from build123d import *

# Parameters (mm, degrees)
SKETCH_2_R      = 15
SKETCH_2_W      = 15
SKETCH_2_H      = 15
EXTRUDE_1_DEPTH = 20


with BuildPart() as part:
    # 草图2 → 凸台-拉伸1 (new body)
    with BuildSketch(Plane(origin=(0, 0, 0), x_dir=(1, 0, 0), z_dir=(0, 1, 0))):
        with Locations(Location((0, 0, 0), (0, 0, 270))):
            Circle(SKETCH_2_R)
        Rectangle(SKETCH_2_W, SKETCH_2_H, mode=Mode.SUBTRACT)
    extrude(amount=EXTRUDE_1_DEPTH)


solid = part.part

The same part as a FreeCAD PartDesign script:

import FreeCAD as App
import Part
import Sketcher
from FreeCAD import Vector
Q = App.Units.Quantity

doc = App.newDocument("Part")
body = doc.addObject("PartDesign::Body", "Body")

# Sketch on XZ plane
sketch1 = doc.addObject("Sketcher::SketchObject", "Sketch")
body.addObject(sketch1)
sketch1.AttachmentSupport = (doc.XZ_Plane, [""])
sketch1.MapMode = "FlatFace"
sketch1.addGeometry([
    Part.Circle(Vector(0, 0, 0), Vector(0, 0, 1), 15),  # 0
    Part.LineSegment(Vector(8, 8, 0), Vector(-8, 8, 0)),  # 1
    Part.LineSegment(Vector(-8, 8, 0), Vector(-8, -8, 0)),  # 2
    Part.LineSegment(Vector(-8, -8, 0), Vector(8, -8, 0)),  # 3
    Part.LineSegment(Vector(8, -8, 0), Vector(8, 8, 0)),  # 4
], False)
sketch1.addConstraint([
    Sketcher.Constraint("Coincident", 1, 2, 2, 1),
    Sketcher.Constraint("Coincident", 2, 2, 3, 1),
    Sketcher.Constraint("Coincident", 3, 2, 4, 1),
    Sketcher.Constraint("Coincident", 4, 2, 1, 1),
    Sketcher.Constraint("Horizontal", 1),
    Sketcher.Constraint("Vertical", 2),
    Sketcher.Constraint("Horizontal", 3),
    Sketcher.Constraint("Vertical", 4),
    Sketcher.Constraint("Coincident", 0, 3, -1, 1),
    Sketcher.Constraint("Symmetric", 1, 2, 3, 2, -1, 1),
    Sketcher.Constraint("Equal", 3, 2),
    Sketcher.Constraint("Diameter", 0, Q("30 mm")),
    Sketcher.Constraint("DistanceX", 1, 2, 1, 1, Q("15 mm")),
])
pad1 = doc.addObject("PartDesign::Pad", "Pad")
body.addObject(pad1)
pad1.Profile = sketch1
pad1.Length = 20
pad1.Reversed = True

doc.recompute()
